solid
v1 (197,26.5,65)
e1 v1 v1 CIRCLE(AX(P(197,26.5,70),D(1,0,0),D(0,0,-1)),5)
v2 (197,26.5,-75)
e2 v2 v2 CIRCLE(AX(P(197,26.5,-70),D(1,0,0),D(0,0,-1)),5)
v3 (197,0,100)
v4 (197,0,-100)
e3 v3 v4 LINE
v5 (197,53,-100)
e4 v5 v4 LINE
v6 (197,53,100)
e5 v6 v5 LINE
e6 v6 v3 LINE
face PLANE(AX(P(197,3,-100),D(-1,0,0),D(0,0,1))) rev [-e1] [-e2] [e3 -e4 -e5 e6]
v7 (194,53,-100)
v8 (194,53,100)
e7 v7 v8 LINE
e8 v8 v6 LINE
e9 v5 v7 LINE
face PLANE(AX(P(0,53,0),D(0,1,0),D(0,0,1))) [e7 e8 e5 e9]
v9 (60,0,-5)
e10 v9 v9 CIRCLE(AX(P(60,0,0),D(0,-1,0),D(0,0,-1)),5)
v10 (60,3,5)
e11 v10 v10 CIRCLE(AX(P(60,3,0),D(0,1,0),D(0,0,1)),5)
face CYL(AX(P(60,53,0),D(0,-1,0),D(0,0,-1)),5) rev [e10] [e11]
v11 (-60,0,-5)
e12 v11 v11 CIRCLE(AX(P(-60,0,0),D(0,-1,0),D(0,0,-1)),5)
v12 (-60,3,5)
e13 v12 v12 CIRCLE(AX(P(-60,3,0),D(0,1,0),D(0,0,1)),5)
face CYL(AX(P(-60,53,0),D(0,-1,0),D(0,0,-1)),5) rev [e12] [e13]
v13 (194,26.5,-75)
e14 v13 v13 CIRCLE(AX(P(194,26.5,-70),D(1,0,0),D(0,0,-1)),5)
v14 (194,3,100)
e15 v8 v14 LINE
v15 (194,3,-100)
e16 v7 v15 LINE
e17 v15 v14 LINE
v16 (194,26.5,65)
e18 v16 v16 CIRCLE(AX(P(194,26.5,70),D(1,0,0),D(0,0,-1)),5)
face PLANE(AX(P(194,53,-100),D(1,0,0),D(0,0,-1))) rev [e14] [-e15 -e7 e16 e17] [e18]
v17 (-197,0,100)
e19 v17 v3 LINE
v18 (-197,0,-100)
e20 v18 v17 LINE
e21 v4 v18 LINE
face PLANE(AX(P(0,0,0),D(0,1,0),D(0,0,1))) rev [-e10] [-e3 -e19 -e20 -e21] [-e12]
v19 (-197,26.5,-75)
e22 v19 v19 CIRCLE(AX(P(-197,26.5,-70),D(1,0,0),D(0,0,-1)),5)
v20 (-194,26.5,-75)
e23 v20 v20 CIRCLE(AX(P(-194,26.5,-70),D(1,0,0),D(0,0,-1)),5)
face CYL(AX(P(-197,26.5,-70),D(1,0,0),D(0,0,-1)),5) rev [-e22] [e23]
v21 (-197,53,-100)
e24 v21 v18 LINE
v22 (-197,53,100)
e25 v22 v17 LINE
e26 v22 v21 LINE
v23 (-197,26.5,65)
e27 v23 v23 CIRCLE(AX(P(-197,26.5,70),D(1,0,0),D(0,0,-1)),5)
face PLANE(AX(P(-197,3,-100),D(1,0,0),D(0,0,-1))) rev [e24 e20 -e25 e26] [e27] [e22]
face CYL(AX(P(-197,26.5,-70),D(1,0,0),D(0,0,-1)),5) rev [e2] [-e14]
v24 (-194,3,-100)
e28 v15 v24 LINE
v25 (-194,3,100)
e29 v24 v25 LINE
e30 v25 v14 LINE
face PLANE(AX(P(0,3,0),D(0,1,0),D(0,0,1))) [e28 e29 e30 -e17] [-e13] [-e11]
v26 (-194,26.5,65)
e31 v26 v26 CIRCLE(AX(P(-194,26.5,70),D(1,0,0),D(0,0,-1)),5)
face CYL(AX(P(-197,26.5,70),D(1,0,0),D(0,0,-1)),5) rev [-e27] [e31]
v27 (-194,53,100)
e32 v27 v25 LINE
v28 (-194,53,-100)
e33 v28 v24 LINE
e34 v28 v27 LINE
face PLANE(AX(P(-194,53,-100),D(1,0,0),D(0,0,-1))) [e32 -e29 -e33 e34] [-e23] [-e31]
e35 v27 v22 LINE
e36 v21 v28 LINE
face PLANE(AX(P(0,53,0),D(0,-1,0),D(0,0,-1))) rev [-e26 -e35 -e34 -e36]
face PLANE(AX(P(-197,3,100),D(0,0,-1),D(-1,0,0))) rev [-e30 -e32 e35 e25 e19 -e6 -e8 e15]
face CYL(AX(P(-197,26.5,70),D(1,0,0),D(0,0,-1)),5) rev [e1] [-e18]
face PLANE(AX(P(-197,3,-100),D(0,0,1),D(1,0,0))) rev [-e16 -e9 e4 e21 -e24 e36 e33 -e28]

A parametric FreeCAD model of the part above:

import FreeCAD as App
import Part
import Sketcher

V = App.Vector

doc = App.newDocument("Part")
body = doc.addObject("PartDesign::Body", "Body")

# Sketch on XZ plane
sketch1 = doc.addObject("Sketcher::SketchObject", "Sketch")
body.addObject(sketch1)
sketch1.AttachmentSupport = (doc.XZ_Plane, [""])
sketch1.MapMode = "FlatFace"
sketch1.addGeometry(Part.LineSegment(V(-197, -100, 0), V(-197, 100, 0)), False)
sketch1.addGeometry(Part.LineSegment(V(-197, 100, 0), V(197, 100, 0)), False)
sketch1.addGeometry(Part.LineSegment(V(197, 100, 0), V(197, -100, 0)), False)
sketch1.addGeometry(Part.LineSegment(V(197, -100, 0), V(-197, -100, 0)), False)
sketch1.addConstraint(Sketcher.Constraint("Coincident", 0, 2, 1, 1))
sketch1.addConstraint(Sketcher.Constraint("Coincident", 1, 2, 2, 1))
sketch1.addConstraint(Sketcher.Constraint("Coincident", 2, 2, 3, 1))
sketch1.addConstraint(Sketcher.Constraint("Coincident", 3, 2, 0, 1))
sketch1.addConstraint(Sketcher.Constraint("Vertical", 0))
sketch1.addConstraint(Sketcher.Constraint("Horizontal", 1))
sketch1.addConstraint(Sketcher.Constraint("Vertical", 2))
sketch1.addConstraint(Sketcher.Constraint("Horizontal", 3))
sketch1.addConstraint(Sketcher.Constraint("Symmetric", 0, 2, 2, 2, -1, 1))
sketch1.addConstraint(Sketcher.Constraint("DistanceX", 1, 1, 1, 2, 394.0))
sketch1.addConstraint(Sketcher.Constraint("DistanceY", 0, 1, 0, 2, 200.0))
pad1 = doc.addObject("PartDesign::Pad", "Pad")
body.addObject(pad1)
pad1.Profile = sketch1
pad1.Length = 3
pad1.Reversed = True

# Sketch on XZ plane
sketch2 = doc.addObject("Sketcher::SketchObject", "Sketch001")
body.addObject(sketch2)
sketch2.AttachmentSupport = (doc.XZ_Plane, [""])
sketch2.MapMode = "FlatFace"
sketch2.AttachmentOffset = App.Placement(V(0, 0, -3), App.Rotation())
sketch2.addGeometry(Part.LineSegment(V(-197, -100, 0), V(-197, 100, 0)), False)
sketch2.addGeometry(Part.LineSegment(V(-197, 100, 0), V(-194, 100, 0)), False)
sketch2.addGeometry(Part.LineSegment(V(-194, 100, 0), V(-194, -100, 0)), False)
sketch2.addGeometry(Part.LineSegment(V(-194, -100, 0), V(-197, -100, 0)), False)
sketch2.addGeometry(Part.LineSegment(V(194, -100, 0), V(194, 100, 0)), False)
sketch2.addGeometry(Part.LineSegment(V(194, 100, 0), V(197, 100, 0)), False)
sketch2.addGeometry(Part.LineSegment(V(197, 100, 0), V(197, -100, 0)), False)
sketch2.addGeometry(Part.LineSegment(V(197, -100, 0), V(194, -100, 0)), False)
sketch2.addConstraint(Sketcher.Constraint("Coincident", 0, 2, 1, 1))
sketch2.addConstraint(Sketcher.Constraint("Coincident", 1, 2, 2, 1))
sketch2.addConstraint(Sketcher.Constraint("Coincident", 2, 2, 3, 1))
sketch2.addConstraint(Sketcher.Constraint("Coincident", 3, 2, 0, 1))
sketch2.addConstraint(Sketcher.Constraint("Coincident", 4, 2, 5, 1))
sketch2.addConstraint(Sketcher.Constraint("Coincident", 5, 2, 6, 1))
sketch2.addConstraint(Sketcher.Constraint("Coincident", 6, 2, 7, 1))
sketch2.addConstraint(Sketcher.Constraint("Coincident", 7, 2, 4, 1))
sketch2.addConstraint(Sketcher.Constraint("Vertical", 0))
sketch2.addConstraint(Sketcher.Constraint("Horizontal", 1))
sketch2.addConstraint(Sketcher.Constraint("Vertical", 2))
sketch2.addConstraint(Sketcher.Constraint("Horizontal", 3))
sketch2.addConstraint(Sketcher.Constraint("Vertical", 4))
sketch2.addConstraint(Sketcher.Constraint("Horizontal", 5))
sketch2.addConstraint(Sketcher.Constraint("Vertical", 6))
sketch2.addConstraint(Sketcher.Constraint("Horizontal", 7))
sketch2.addConstraint(Sketcher.Constraint("Symmetric", 2, 2, 4, 2, -1, 1))
sketch2.addConstraint(Sketcher.Constraint("Symmetric", 0, 2, 6, 2, -1, 1))
sketch2.addConstraint(Sketcher.Constraint("Horizontal", 1, 2, 4, 2))
sketch2.addConstraint(Sketcher.Constraint("DistanceX", 1, 1, 1, 2, 3.0))
sketch2.addConstraint(Sketcher.Constraint("DistanceY", 0, 1, 0, 2, 200.0))
sketch2.addConstraint(Sketcher.Constraint("DistanceX", 0, 2, -1, 1, 197.0))
pad2 = doc.addObject("PartDesign::Pad", "Pad001")
body.addObject(pad2)
pad2.Profile = sketch2
pad2.Length = 50
pad2.Reversed = True

# Sketch on YZ plane
sketch3 = doc.addObject("Sketcher::SketchObject", "Sketch002")
body.addObject(sketch3)
sketch3.AttachmentSupport = (doc.YZ_Plane, [""])
sketch3.MapMode = "FlatFace"
sketch3.AttachmentOffset = App.Placement(V(0, 0, 197), App.Rotation())
sketch3.addGeometry(Part.Circle(V(26, -70, 0), V(0, 0, 1), 5), False)
sketch3.addGeometry(Part.Circle(V(26, 70, 0), V(0, 0, 1), 5), False)
sketch3.addConstraint(Sketcher.Constraint("Equal", 0, 1))
sketch3.addConstraint(Sketcher.Constraint("Symmetric", 0, 3, 1, 3, -1))
sketch3.addConstraint(Sketcher.Constraint("Diameter", 0, 10.0))
sketch3.addConstraint(Sketcher.Constraint("DistanceY", 0, 3, -1, 1, 70.0))
sketch3.addConstraint(Sketcher.Constraint("DistanceX", -1, 1, 0, 3, 26.5))
pocket1 = doc.addObject("PartDesign::Pocket", "Pocket")
body.addObject(pocket1)
pocket1.Profile = sketch3
pocket1.Type = "ThroughAll"

# Sketch on XZ plane
sketch4 = doc.addObject("Sketcher::SketchObject", "Sketch003")
body.addObject(sketch4)
sketch4.AttachmentSupport = (doc.XZ_Plane, [""])
sketch4.MapMode = "FlatFace"
sketch4.addGeometry(Part.Circle(V(60, 0, 0), V(0, 0, 1), 5), False)
sketch4.addGeometry(Part.Circle(V(-60, 0, 0), V(0, 0, 1), 5), False)
sketch4.addConstraint(Sketcher.Constraint("Equal", 0, 1))
sketch4.addConstraint(Sketcher.Constraint("Symmetric", 0, 3, 1, 3, -1, 1))
sketch4.addConstraint(Sketcher.Constraint("PointOnObject", 0, 3, -1))
sketch4.addConstraint(Sketcher.Constraint("Diameter", 0, 10.0))
sketch4.addConstraint(Sketcher.Constraint("DistanceX", -1, 1, 0, 3, 60.0))
pocket2 = doc.addObject("PartDesign::Pocket", "Pocket001")
body.addObject(pocket2)
pocket2.Profile = sketch4
pocket2.Type = "ThroughAll"

doc.recompute()
